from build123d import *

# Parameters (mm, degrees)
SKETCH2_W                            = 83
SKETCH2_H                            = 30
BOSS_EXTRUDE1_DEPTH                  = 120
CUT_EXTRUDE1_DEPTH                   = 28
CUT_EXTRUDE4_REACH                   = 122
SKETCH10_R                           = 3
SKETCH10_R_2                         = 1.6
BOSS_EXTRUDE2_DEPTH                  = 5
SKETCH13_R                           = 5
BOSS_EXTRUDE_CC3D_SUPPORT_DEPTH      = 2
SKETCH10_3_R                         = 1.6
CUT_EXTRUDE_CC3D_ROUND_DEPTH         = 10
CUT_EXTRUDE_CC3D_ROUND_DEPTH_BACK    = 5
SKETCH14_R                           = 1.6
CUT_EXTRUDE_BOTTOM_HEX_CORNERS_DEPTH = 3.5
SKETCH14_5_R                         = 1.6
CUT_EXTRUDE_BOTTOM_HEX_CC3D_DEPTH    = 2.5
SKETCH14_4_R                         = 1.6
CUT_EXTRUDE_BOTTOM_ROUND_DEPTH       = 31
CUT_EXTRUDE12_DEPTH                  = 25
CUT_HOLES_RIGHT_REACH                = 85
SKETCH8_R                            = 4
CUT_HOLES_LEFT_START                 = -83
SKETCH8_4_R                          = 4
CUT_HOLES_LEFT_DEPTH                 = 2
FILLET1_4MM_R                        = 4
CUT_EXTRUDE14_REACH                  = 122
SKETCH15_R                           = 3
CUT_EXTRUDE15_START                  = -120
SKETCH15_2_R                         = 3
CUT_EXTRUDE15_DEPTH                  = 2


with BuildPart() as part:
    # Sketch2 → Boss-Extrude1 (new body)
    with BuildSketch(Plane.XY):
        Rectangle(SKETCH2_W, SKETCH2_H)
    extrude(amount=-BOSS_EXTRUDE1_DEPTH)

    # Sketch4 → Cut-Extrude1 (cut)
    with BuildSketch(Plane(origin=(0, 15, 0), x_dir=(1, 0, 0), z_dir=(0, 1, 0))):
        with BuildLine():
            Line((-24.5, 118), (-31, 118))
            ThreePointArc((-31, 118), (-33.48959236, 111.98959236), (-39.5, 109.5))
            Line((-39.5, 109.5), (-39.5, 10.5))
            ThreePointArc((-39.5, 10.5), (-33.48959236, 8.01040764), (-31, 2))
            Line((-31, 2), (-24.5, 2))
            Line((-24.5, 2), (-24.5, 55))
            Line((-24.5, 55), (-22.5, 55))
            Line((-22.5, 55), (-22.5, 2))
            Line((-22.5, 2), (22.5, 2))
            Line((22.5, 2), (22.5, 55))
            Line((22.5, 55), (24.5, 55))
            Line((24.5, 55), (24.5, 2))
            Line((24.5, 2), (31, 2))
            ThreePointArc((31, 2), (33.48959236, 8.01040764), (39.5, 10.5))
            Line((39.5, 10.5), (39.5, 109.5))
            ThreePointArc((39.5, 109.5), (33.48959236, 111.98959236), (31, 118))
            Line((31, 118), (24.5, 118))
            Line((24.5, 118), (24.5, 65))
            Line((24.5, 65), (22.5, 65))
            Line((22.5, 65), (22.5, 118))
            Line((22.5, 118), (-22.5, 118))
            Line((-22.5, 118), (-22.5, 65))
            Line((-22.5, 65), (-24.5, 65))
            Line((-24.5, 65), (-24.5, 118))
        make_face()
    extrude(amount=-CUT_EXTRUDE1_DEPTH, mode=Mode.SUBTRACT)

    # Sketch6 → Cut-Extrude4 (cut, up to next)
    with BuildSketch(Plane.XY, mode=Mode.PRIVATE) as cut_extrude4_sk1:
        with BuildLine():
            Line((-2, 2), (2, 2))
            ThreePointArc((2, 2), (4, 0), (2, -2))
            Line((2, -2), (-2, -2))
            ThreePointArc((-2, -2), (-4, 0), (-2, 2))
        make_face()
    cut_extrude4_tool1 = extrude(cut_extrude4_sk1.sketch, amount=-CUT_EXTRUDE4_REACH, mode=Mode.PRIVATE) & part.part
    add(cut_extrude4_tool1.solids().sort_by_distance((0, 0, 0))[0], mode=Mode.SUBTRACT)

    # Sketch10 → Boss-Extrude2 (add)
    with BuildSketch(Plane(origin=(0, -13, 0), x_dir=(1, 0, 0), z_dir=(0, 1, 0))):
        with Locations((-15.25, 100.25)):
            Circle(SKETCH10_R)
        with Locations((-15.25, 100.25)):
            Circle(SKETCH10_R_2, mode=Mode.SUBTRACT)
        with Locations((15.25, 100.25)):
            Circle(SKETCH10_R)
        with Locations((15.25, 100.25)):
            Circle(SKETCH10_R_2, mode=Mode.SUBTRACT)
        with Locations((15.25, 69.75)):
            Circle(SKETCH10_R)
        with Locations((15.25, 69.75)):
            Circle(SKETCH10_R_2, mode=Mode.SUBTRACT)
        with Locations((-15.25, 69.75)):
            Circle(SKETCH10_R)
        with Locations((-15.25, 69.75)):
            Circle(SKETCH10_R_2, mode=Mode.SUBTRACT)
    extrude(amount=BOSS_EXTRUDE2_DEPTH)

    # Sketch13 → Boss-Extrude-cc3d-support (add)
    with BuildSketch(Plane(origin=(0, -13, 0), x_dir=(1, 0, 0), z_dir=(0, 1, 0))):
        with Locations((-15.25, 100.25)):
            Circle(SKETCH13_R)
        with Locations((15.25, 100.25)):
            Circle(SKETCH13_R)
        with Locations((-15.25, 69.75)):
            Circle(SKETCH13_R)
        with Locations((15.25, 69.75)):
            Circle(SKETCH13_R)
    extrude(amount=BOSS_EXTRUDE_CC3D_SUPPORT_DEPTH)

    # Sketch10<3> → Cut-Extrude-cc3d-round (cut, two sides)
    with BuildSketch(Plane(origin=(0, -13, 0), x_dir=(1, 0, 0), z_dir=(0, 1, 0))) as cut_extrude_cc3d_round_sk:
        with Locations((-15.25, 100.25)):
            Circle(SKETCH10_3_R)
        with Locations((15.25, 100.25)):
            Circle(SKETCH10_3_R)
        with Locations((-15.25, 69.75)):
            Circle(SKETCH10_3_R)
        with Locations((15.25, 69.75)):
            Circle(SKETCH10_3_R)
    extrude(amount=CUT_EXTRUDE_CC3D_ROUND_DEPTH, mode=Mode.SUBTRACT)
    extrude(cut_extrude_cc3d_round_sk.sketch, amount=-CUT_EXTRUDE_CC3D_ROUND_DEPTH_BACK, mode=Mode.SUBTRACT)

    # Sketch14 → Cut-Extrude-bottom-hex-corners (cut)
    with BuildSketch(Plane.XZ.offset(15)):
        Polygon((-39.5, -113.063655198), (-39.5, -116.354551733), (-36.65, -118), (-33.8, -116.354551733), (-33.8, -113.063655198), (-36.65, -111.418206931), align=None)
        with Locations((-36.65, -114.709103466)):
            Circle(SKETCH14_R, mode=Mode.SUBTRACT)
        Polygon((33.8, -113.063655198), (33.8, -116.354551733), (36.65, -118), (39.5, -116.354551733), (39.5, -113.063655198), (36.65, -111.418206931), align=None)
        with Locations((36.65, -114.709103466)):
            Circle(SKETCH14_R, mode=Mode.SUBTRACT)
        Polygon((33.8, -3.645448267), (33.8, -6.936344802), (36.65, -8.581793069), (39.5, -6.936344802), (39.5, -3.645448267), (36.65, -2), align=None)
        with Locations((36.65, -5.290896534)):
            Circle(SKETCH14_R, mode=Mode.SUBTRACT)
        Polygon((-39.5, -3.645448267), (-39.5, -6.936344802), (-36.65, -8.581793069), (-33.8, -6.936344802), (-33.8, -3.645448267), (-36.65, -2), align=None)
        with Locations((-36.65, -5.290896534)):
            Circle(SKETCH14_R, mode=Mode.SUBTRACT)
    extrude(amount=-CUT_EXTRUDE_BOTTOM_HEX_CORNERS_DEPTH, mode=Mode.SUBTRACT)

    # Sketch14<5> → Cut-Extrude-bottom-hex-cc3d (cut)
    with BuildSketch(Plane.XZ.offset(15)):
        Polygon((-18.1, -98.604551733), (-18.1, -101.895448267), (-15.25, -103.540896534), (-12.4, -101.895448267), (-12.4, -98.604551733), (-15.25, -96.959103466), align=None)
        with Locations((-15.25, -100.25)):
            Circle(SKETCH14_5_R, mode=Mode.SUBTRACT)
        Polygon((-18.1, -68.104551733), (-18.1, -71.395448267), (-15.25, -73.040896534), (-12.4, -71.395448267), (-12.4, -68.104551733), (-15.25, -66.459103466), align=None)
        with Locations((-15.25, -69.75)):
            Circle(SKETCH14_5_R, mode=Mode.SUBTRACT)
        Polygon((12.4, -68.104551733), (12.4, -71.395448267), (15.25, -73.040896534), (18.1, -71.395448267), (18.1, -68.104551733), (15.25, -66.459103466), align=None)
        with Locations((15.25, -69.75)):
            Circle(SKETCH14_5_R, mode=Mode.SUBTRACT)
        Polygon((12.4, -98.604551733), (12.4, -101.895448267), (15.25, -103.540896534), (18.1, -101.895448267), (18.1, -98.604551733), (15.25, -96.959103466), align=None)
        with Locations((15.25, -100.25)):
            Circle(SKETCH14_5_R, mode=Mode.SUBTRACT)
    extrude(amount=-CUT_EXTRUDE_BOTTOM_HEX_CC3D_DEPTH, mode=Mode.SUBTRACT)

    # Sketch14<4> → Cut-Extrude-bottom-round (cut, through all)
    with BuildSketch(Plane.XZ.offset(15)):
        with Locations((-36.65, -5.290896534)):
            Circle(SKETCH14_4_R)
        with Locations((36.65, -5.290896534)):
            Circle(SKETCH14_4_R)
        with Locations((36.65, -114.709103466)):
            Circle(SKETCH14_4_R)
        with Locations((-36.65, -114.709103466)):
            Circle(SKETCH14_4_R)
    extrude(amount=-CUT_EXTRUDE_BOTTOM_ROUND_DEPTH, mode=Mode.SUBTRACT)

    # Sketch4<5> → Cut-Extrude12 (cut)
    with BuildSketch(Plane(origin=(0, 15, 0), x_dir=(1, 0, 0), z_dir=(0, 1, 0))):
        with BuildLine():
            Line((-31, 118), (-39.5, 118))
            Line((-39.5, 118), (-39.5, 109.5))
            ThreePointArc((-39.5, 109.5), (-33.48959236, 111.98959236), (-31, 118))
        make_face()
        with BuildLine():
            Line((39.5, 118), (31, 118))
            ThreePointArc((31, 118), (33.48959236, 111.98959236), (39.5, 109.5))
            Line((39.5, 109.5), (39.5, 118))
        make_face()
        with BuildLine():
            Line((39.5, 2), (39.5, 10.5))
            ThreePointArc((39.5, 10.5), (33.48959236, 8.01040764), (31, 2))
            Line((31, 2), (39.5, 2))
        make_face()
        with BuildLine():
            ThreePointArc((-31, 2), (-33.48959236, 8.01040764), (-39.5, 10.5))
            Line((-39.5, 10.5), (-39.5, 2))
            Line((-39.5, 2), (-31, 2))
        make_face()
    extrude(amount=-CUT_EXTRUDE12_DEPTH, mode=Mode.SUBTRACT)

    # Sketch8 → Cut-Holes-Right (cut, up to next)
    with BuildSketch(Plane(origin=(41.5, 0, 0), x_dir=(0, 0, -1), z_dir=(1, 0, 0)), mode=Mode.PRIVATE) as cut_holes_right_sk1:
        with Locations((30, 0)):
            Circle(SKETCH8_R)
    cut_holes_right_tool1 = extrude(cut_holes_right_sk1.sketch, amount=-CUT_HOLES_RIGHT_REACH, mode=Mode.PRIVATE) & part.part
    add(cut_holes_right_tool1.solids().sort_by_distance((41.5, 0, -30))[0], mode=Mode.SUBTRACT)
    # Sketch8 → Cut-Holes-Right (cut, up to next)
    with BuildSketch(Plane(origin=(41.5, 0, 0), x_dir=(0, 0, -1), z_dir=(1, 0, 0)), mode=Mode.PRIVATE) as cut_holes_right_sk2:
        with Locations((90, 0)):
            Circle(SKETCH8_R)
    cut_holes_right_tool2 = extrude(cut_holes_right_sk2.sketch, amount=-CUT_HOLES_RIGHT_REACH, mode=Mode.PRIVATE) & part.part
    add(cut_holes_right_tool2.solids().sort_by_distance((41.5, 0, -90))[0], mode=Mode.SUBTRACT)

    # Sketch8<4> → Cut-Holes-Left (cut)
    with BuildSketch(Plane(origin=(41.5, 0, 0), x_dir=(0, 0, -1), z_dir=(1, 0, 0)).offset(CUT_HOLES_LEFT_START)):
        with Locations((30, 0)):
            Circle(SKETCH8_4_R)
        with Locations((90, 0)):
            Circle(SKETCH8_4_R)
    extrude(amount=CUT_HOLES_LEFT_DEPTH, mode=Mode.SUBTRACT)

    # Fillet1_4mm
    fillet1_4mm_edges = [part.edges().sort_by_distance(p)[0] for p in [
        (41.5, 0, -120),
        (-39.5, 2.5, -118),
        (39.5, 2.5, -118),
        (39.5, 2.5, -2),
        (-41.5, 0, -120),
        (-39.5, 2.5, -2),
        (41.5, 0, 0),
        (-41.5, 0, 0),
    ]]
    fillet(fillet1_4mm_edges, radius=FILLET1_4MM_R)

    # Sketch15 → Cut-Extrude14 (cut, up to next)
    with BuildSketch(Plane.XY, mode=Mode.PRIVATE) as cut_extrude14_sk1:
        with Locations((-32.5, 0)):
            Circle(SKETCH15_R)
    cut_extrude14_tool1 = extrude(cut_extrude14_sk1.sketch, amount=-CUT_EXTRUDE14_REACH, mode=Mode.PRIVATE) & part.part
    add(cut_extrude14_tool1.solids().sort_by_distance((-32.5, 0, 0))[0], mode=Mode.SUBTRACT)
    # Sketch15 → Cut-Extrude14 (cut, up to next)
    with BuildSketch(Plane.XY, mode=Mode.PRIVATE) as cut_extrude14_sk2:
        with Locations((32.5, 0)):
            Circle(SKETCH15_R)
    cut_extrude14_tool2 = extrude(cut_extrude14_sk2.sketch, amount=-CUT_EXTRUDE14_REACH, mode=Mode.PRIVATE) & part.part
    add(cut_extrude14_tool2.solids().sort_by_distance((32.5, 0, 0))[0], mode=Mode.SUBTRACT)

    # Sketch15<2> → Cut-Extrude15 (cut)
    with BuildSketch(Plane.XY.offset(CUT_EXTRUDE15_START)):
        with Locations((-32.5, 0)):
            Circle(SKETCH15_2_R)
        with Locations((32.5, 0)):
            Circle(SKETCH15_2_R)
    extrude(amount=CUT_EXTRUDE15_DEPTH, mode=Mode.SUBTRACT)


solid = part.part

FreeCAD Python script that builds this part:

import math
import FreeCAD as App
import Part
import Sketcher
from FreeCAD import Vector
Q = App.Units.Quantity


def edges_at(feature, points):
    """Names of the edges that pass closest to the given points."""
    edges = feature.Shape.Edges
    near = lambda p: min(range(len(edges)), key=lambda i: edges[i].distToShape(Part.Vertex(*p))[0])
    return sorted({f"Edge{near(p) + 1}" for p in points})

doc = App.newDocument("Part")
body = doc.addObject("PartDesign::Body", "Body")

sketch1 = body.newObject("Sketcher::SketchObject", "Sketch")
sketch1.AttachmentSupport = (doc.getObject("XY_Plane"), [""])
sketch1.MapMode = "FlatFace"
sketch1.addGeometry([
    Part.LineSegment(Vector(-42, 15, 0), Vector(-42, -15, 0)),
    Part.LineSegment(Vector(-42, -15, 0), Vector(42, -15, 0)),
    Part.LineSegment(Vector(42, -15, 0), Vector(42, 15, 0)),
    Part.LineSegment(Vector(42, 15, 0), Vector(-42, 15, 0)),
], False)
sketch1.addConstraint([
    Sketcher.Constraint("Coincident", 0, 2, 1, 1),
    Sketcher.Constraint("Coincident", 1, 2, 2, 1),
    Sketcher.Constraint("Coincident", 2, 2, 3, 1),
    Sketcher.Constraint("Coincident", 3, 2, 0, 1),
    Sketcher.Constraint("Vertical", 0),
    Sketcher.Constraint("Horizontal", 1),
    Sketcher.Constraint("Vertical", 2),
    Sketcher.Constraint("Horizontal", 3),
    Sketcher.Constraint("Symmetric", 0, 2, 2, 2, -1, 1),
    Sketcher.Constraint("DistanceX", 1, 1, 1, 2, 83.0),
    Sketcher.Constraint("DistanceY", 0, 2, 0, 1, 30.0),
])
pad1 = body.newObject("PartDesign::Pad", "Pad")
pad1.Profile = sketch1
pad1.Length = 120
pad1.Reversed = True

sketch2 = body.newObject("Sketcher::SketchObject", "Sketch001")
sketch2.AttachmentSupport = (doc.getObject("XZ_Plane"), [""])
sketch2.MapMode = "FlatFace"
sketch2.AttachmentOffset = App.Placement(Vector(0, 0, -15), App.Rotation())
sketch2.addGeometry([
    Part.LineSegment(Vector(-24.5, -118, 0), Vector(-31, -118, 0)),
    Part.ArcOfCircle(Part.Circle(Vector(-39.5, -118, 0), Vector(0, 0, 1), 8.5), math.radians(0), math.radians(90)),
    Part.LineSegment(Vector(-39.5, -109.5, 0), Vector(-39.5, -10.5, 0)),
    Part.ArcOfCircle(Part.Circle(Vector(-39.5, -2, 0), Vector(0, 0, 1), 8.5), math.radians(-90), math.radians(0)),
    Part.LineSegment(Vector(-31, -2, 0), Vector(-24.5, -2, 0)),
    Part.LineSegment(Vector(-24.5, -2, 0), Vector(-24.5, -55, 0)),
    Part.LineSegment(Vector(-24.5, -55, 0), Vector(-22.5, -55, 0)),
    Part.LineSegment(Vector(-22.5, -55, 0), Vector(-22.5, -2, 0)),
    Part.LineSegment(Vector(-22.5, -2, 0), Vector(22.5, -2, 0)),
    Part.LineSegment(Vector(22.5, -2, 0), Vector(22.5, -55, 0)),
    Part.LineSegment(Vector(22.5, -55, 0), Vector(24.5, -55, 0)),
    Part.LineSegment(Vector(24.5, -55, 0), Vector(24.5, -2, 0)),
    Part.LineSegment(Vector(24.5, -2, 0), Vector(31, -2, 0)),
    Part.ArcOfCircle(Part.Circle(Vector(39.5, -2, 0), Vector(0, 0, 1), 8.5), math.radians(180), math.radians(270)),
    Part.LineSegment(Vector(39.5, -10.5, 0), Vector(39.5, -109.5, 0)),
    Part.ArcOfCircle(Part.Circle(Vector(39.5, -118, 0), Vector(0, 0, 1), 8.5), math.radians(90), math.radians(180)),
    Part.LineSegment(Vector(31, -118, 0), Vector(24.5, -118, 0)),
    Part.LineSegment(Vector(24.5, -118, 0), Vector(24.5, -65, 0)),
    Part.LineSegment(Vector(24.5, -65, 0), Vector(22.5, -65, 0)),
    Part.LineSegment(Vector(22.5, -65, 0), Vector(22.5, -118, 0)),
    Part.LineSegment(Vector(22.5, -118, 0), Vector(-22.5, -118, 0)),
    Part.LineSegment(Vector(-22.5, -118, 0), Vector(-22.5, -65, 0)),
    Part.LineSegment(Vector(-22.5, -65, 0), Vector(-24.5, -65, 0)),
    Part.LineSegment(Vector(-24.5, -65, 0), Vector(-24.5, -118, 0)),
], False)
sketch2.addConstraint([
    Sketcher.Constraint("Coincident", 0, 2, 1, 1),
    Sketcher.Constraint("Coincident", 1, 2, 2, 1),
    Sketcher.Constraint("Coincident", 2, 2, 3, 1),
    Sketcher.Constraint("Coincident", 3, 2, 4, 1),
    Sketcher.Constraint("Coincident", 4, 2, 5, 1),
    Sketcher.Constraint("Coincident", 5, 2, 6, 1),
    Sketcher.Constraint("Coincident", 6, 2, 7, 1),
    Sketcher.Constraint("Coincident", 7, 2, 8, 1),
    Sketcher.Constraint("Coincident", 8, 2, 9, 1),
    Sketcher.Constraint("Coincident", 9, 2, 10, 1),
    Sketcher.Constraint("Coincident", 10, 2, 11, 1),
    Sketcher.Constraint("Coincident", 11, 2, 12, 1),
    Sketcher.Constraint("Coincident", 12, 2, 13, 1),
    Sketcher.Constraint("Coincident", 13, 2, 14, 1),
    Sketcher.Constraint("Coincident", 14, 2, 15, 1),
    Sketcher.Constraint("Coincident", 15, 2, 16, 1),
    Sketcher.Constraint("Coincident", 16, 2, 17, 1),
    Sketcher.Constraint("Coincident", 17, 2, 18, 1),
    Sketcher.Constraint("Coincident", 18, 2, 19, 1),
    Sketcher.Constraint("Coincident", 19, 2, 20, 1),
    Sketcher.Constraint("Coincident", 20, 2, 21, 1),
    Sketcher.Constraint("Coincident", 21, 2, 22, 1),
    Sketcher.Constraint("Coincident", 22, 2, 23, 1),
    Sketcher.Constraint("Coincident", 23, 2, 0, 1),
    Sketcher.Constraint("Horizontal", 0),
    Sketcher.Constraint("Vertical", 2),
    Sketcher.Constraint("Horizontal", 4),
    Sketcher.Constraint("Vertical", 5),
    Sketcher.Constraint("Horizontal", 6),
    Sketcher.Constraint("Vertical", 7),
    Sketcher.Constraint("Horizontal", 8),
    Sketcher.Constraint("Vertical", 9),
    Sketcher.Constraint("Horizontal", 10),
    Sketcher.Constraint("Vertical", 11),
    Sketcher.Constraint("Horizontal", 12),
    Sketcher.Constraint("Vertical", 14),
    Sketcher.Constraint("Horizontal", 16),
    Sketcher.Constraint("Vertical", 17),
    Sketcher.Constraint("Horizontal", 18),
    Sketcher.Constraint("Vertical", 19),
    Sketcher.Constraint("Horizontal", 20),
    Sketcher.Constraint("Vertical", 21),
    Sketcher.Constraint("Horizontal", 22),
    Sketcher.Constraint("Vertical", 23),
    Sketcher.Constraint("Equal", 1, 3),
    Sketcher.Constraint("Equal", 3, 13),
    Sketcher.Constraint("Equal", 13, 15),
    Sketcher.Constraint("Symmetric", 3, 3, 13, 3, -2),
    Sketcher.Constraint("Symmetric", 1, 3, 15, 3, -2),
    Sketcher.Constraint("Symmetric", 6, 2, 9, 2, -2),
    Sketcher.Constraint("Symmetric", 4, 2, 11, 2, -2),
    Sketcher.Constraint("Symmetric", 18, 2, 21, 2, -2),
    Sketcher.Constraint("Symmetric", 16, 2, 23, 2, -2),
    Sketcher.Constraint("Horizontal", 15, 3, 0, 2),
    Sketcher.Constraint("Horizontal", 13, 3, 3, 2),
    Sketcher.Constraint("Horizontal", 4, 2, 7, 2),
    Sketcher.Constraint("Horizontal", 16, 2, 19, 2),
    Sketcher.Constraint("Vertical", 1, 3, 3, 3),
    Sketcher.Constraint("Vertical", 3, 3, 1, 2),
    Sketcher.Constraint("Vertical", 15, 3, 13, 2),
    Sketcher.Constraint("Vertical", 11, 2, 16, 2),
    Sketcher.Constraint("Vertical", 9, 2, 18, 2),
    Sketcher.Constraint("Equal", 11, 17),
    Sketcher.Constraint("Radius", 1, 8.5),
    Sketcher.Constraint("DistanceX", 6, 1, 6, 2, 2.0),
    Sketcher.Constraint("DistanceX", 8, 1, 8, 2, 45.0),
    Sketcher.Constraint("DistanceY", 2, 1, 2, 2, 99.0),
    Sketcher.Constraint("DistanceY", 5, 2, 5, 1, 53.0),
    Sketcher.Constraint("DistanceX", 0, 2, 0, 1, 6.5),
    Sketcher.Constraint("DistanceY", 1, 3, -1, 1, 118.0),
])
pocket1 = body.newObject("PartDesign::Pocket", "Pocket")
pocket1.Profile = sketch2
pocket1.Length = 28
pocket1.Reversed = True

sketch3 = body.newObject("Sketcher::SketchObject", "Sketch002")
sketch3.AttachmentSupport = (doc.getObject("XY_Plane"), [""])
sketch3.MapMode = "FlatFace"
sketch3.addGeometry([
    Part.LineSegment(Vector(2, 2, 0), Vector(-2, 2, 0)),
    Part.ArcOfCircle(Part.Circle(Vector(-2, 0, 0), Vector(0, 0, 1), 2), math.radians(90), math.radians(270)),
    Part.LineSegment(Vector(-2, -2, 0), Vector(2, -2, 0)),
    Part.ArcOfCircle(Part.Circle(Vector(2, 0, 0), Vector(0, 0, 1), 2), math.radians(-90), math.radians(90)),
], False)
sketch3.addConstraint([
    Sketcher.Constraint("Tangent", 0, 2, 1, 1),
    Sketcher.Constraint("Tangent", 1, 2, 2, 1),
    Sketcher.Constraint("Tangent", 2, 2, 3, 1),
    Sketcher.Constraint("Tangent", 3, 2, 0, 1),
    Sketcher.Constraint("Horizontal", 0),
    Sketcher.Constraint("Horizontal", 2),
    Sketcher.Constraint("Symmetric", 1, 3, 3, 3, -1, 1),
    Sketcher.Constraint("Radius", 1, 2.0),
    Sketcher.Constraint("DistanceX", 0, 2, 0, 1, 4.0),
])
pocket2 = body.newObject("PartDesign::Pocket", "Pocket001")
pocket2.Profile = sketch3
pocket2.Type = "UpToFirst"

sketch4 = body.newObject("Sketcher::SketchObject", "Sketch003")
sketch4.AttachmentSupport = (doc.getObject("XZ_Plane"), [""])
sketch4.MapMode = "FlatFace"
sketch4.AttachmentOffset = App.Placement(Vector(0, 0, 13), App.Rotation())
sketch4.addGeometry([
    Part.Circle(Vector(-15.2, -100.2, 0), Vector(0, 0, 1), 3),
    Part.Circle(Vector(-15.2, -100.2, 0), Vector(0, 0, 1), 1.6),
    Part.Circle(Vector(15.2, -100.2, 0), Vector(0, 0, 1), 3),
    Part.Circle(Vector(15.2, -100.2, 0), Vector(0, 0, 1), 1.6),
    Part.Circle(Vector(15.2, -69.8, 0), Vector(0, 0, 1), 3),
    Part.Circle(Vector(15.2, -69.8, 0), Vector(0, 0, 1), 1.6),
    Part.Circle(Vector(-15.2, -69.8, 0), Vector(0, 0, 1), 3),
    Part.Circle(Vector(-15.2, -69.8, 0), Vector(0, 0, 1), 1.6),
], False)
sketch4.addConstraint([
    Sketcher.Constraint("Coincident", 1, 3, 0, 3),
    Sketcher.Constraint("Coincident", 3, 3, 2, 3),
    Sketcher.Constraint("Coincident", 5, 3, 4, 3),
    Sketcher.Constraint("Coincident", 7, 3, 6, 3),
    Sketcher.Constraint("Equal", 0, 2),
    Sketcher.Constraint("Equal", 1, 3),
    Sketcher.Constraint("Equal", 2, 4),
    Sketcher.Constraint("Equal", 3, 5),
    Sketcher.Constraint("Equal", 4, 6),
    Sketcher.Constraint("Equal", 5, 7),
    Sketcher.Constraint("Symmetric", 0, 3, 2, 3, -2),
    Sketcher.Constraint("Symmetric", 4, 3, 6, 3, -2),
    Sketcher.Constraint("Vertical", 3, 3, 4, 3),
    Sketcher.Constraint("Diameter", 0, 6.0),
    Sketcher.Constraint("Diameter", 1, 3.2),
    Sketcher.Constraint("DistanceX", 0, 3, 2, 3, 30.5),
    Sketcher.Constraint("DistanceY", 2, 3, 4, 3, 30.5),
    Sketcher.Constraint("DistanceY", 0, 3, -1, 1, 100.25),
])
pad2 = body.newObject("PartDesign::Pad", "Pad001")
pad2.Profile = sketch4
pad2.Length = 5
pad2.Reversed = True

sketch5 = body.newObject("Sketcher::SketchObject", "Sketch004")
sketch5.AttachmentSupport = (doc.getObject("XZ_Plane"), [""])
sketch5.MapMode = "FlatFace"
sketch5.AttachmentOffset = App.Placement(Vector(0, 0, 13), App.Rotation())
sketch5.addGeometry([
    Part.Circle(Vector(-15, -100, 0), Vector(0, 0, 1), 5),
    Part.Circle(Vector(15, -100, 0), Vector(0, 0, 1), 5),
    Part.Circle(Vector(-15, -70, 0), Vector(0, 0, 1), 5),
    Part.Circle(Vector(15, -70, 0), Vector(0, 0, 1), 5),
], False)
sketch5.addConstraint([
    Sketcher.Constraint("Equal", 0, 1),
    Sketcher.Constraint("Equal", 1, 2),
    Sketcher.Constraint("Equal", 2, 3),
    Sketcher.Constraint("Symmetric", 0, 3, 1, 3, -2),
    Sketcher.Constraint("Symmetric", 2, 3, 3, 3, -2),
    Sketcher.Constraint("Vertical", 0, 3, 2, 3),
    Sketcher.Constraint("Diameter", 0, 10.0),
    Sketcher.Constraint("DistanceX", 0, 3, 1, 3, 30.5),
    Sketcher.Constraint("DistanceY", 0, 3, 2, 3, 30.5),
    Sketcher.Constraint("DistanceY", 0, 3, -1, 1, 100.25),
])
pad3 = body.newObject("PartDesign::Pad", "Pad002")
pad3.Profile = sketch5
pad3.Length = 2
pad3.Reversed = True

sketch6 = body.newObject("Sketcher::SketchObject", "Sketch005")
sketch6.AttachmentSupport = (doc.getObject("XZ_Plane"), [""])
sketch6.MapMode = "FlatFace"
sketch6.AttachmentOffset = App.Placement(Vector(0, 0, 13), App.Rotation())
sketch6.addGeometry([
    Part.Circle(Vector(-15.2, -100.2, 0), Vector(0, 0, 1), 1.6),
    Part.Circle(Vector(15.2, -100.2, 0), Vector(0, 0, 1), 1.6),
    Part.Circle(Vector(-15.2, -69.8, 0), Vector(0, 0, 1), 1.6),
    Part.Circle(Vector(15.2, -69.8, 0), Vector(0, 0, 1), 1.6),
], False)
sketch6.addConstraint([
    Sketcher.Constraint("Equal", 0, 1),
    Sketcher.Constraint("Equal", 1, 2),
    Sketcher.Constraint("Equal", 2, 3),
    Sketcher.Constraint("Symmetric", 0, 3, 1, 3, -2),
    Sketcher.Constraint("Symmetric", 2, 3, 3, 3, -2),
    Sketcher.Constraint("Vertical", 0, 3, 2, 3),
    Sketcher.Constraint("Diameter", 0, 3.2),
    Sketcher.Constraint("DistanceX", 0, 3, 1, 3, 30.5),
    Sketcher.Constraint("DistanceY", 0, 3, 2, 3, 30.5),
    Sketcher.Constraint("DistanceY", 0, 3, -1, 1, 100.25),
])
pocket3 = body.newObject("PartDesign::Pocket", "Pocket002")
pocket3.Profile = sketch6
pocket3.Type = "ThroughAll"
pocket3.Midplane = True

sketch7 = body.newObject("Sketcher::SketchObject", "Sketch006")
sketch7.AttachmentSupport = (doc.getObject("XZ_Plane"), [""])
sketch7.MapMode = "FlatFace"
sketch7.AttachmentOffset = App.Placement(Vector(0, 0, 15), App.Rotation())
sketch7.addGeometry([
    Part.LineSegment(Vector(-39.5, -113.1, 0), Vector(-39.5, -116.4, 0)),
    Part.LineSegment(Vector(-39.5, -116.4, 0), Vector(-36.6, -118, 0)),
    Part.LineSegment(Vector(-36.6, -118, 0), Vector(-33.8, -116.4, 0)),
    Part.LineSegment(Vector(-33.8, -116.4, 0), Vector(-33.8, -113.1, 0)),
    Part.LineSegment(Vector(-33.8, -113.1, 0), Vector(-36.6, -111.4, 0)),
    Part.LineSegment(Vector(-36.6, -111.4, 0), Vector(-39.5, -113.1, 0)),
    Part.Circle(Vector(-36.6, -114.7, 0), Vector(0, 0, 1), 1.6),
    Part.LineSegment(Vector(33.8, -113.1, 0), Vector(33.8, -116.4, 0)),
    Part.LineSegment(Vector(33.8, -116.4, 0), Vector(36.6, -118, 0)),
    Part.LineSegment(Vector(36.6, -118, 0), Vector(39.5, -116.4, 0)),
    Part.LineSegment(Vector(39.5, -116.4, 0), Vector(39.5, -113.1, 0)),
    Part.LineSegment(Vector(39.5, -113.1, 0), Vector(36.6, -111.4, 0)),
    Part.LineSegment(Vector(36.6, -111.4, 0), Vector(33.8, -113.1, 0)),
    Part.Circle(Vector(36.6, -114.7, 0), Vector(0, 0, 1), 1.6),
    Part.LineSegment(Vector(33.8, -3.6, 0), Vector(33.8, -6.9, 0)),
    Part.LineSegment(Vector(33.8, -6.9, 0), Vector(36.6, -8.6, 0)),
    Part.LineSegment(Vector(36.6, -8.6, 0), Vector(39.5, -6.9, 0)),
    Part.LineSegment(Vector(39.5, -6.9, 0), Vector(39.5, -3.6, 0)),
    Part.LineSegment(Vector(39.5, -3.6, 0), Vector(36.6, -2, 0)),
    Part.LineSegment(Vector(36.6, -2, 0), Vector(33.8, -3.6, 0)),
    Part.Circle(Vector(36.6, -5.3, 0), Vector(0, 0, 1), 1.6),
    Part.LineSegment(Vector(-39.5, -3.6, 0), Vector(-39.5, -6.9, 0)),
    Part.LineSegment(Vector(-39.5, -6.9, 0), Vector(-36.6, -8.6, 0)),
    Part.LineSegment(Vector(-36.6, -8.6, 0), Vector(-33.8, -6.9, 0)),
    Part.LineSegment(Vector(-33.8, -6.9, 0), Vector(-33.8, -3.6, 0)),
    Part.LineSegment(Vector(-33.8, -3.6, 0), Vector(-36.6, -2, 0)),
    Part.LineSegment(Vector(-36.6, -2, 0), Vector(-39.5, -3.6, 0)),
    Part.Circle(Vector(-36.6, -5.3, 0), Vector(0, 0, 1), 1.6),
], False)
sketch7.addConstraint([
    Sketcher.Constraint("Coincident", 0, 2, 1, 1),
    Sketcher.Constraint("Coincident", 1, 2, 2, 1),
    Sketcher.Constraint("Coincident", 2, 2, 3, 1),
    Sketcher.Constraint("Coincident", 3, 2, 4, 1),
    Sketcher.Constraint("Coincident", 4, 2, 5, 1),
    Sketcher.Constraint("Coincident", 5, 2, 0, 1),
    Sketcher.Constraint("Coincident", 7, 2, 8, 1),
    Sketcher.Constraint("Coincident", 8, 2, 9, 1),
    Sketcher.Constraint("Coincident", 9, 2, 10, 1),
    Sketcher.Constraint("Coincident", 10, 2, 11, 1),
    Sketcher.Constraint("Coincident", 11, 2, 12, 1),
    Sketcher.Constraint("Coincident", 12, 2, 7, 1),
    Sketcher.Constraint("Coincident", 14, 2, 15, 1),
    Sketcher.Constraint("Coincident", 15, 2, 16, 1),
    Sketcher.Constraint("Coincident", 16, 2, 17, 1),
    Sketcher.Constraint("Coincident", 17, 2, 18, 1),
    Sketcher.Constraint("Coincident", 18, 2, 19, 1),
    Sketcher.Constraint("Coincident", 19, 2, 14, 1),
    Sketcher.Constraint("Coincident", 21, 2, 22, 1),
    Sketcher.Constraint("Coincident", 22, 2, 23, 1),
    Sketcher.Constraint("Coincident", 23, 2, 24, 1),
    Sketcher.Constraint("Coincident", 24, 2, 25, 1),
    Sketcher.Constraint("Coincident", 25, 2, 26, 1),
    Sketcher.Constraint("Coincident", 26, 2, 21, 1),
    Sketcher.Constraint("Vertical", 0),
    Sketcher.Constraint("Vertical", 3),
    Sketcher.Constraint("Vertical", 7),
    Sketcher.Constraint("Vertical", 10),
    Sketcher.Constraint("Vertical", 14),
    Sketcher.Constraint("Vertical", 17),
    Sketcher.Constraint("Vertical", 21),
    Sketcher.Constraint("Vertical", 24),
    Sketcher.Constraint("Equal", 6, 13),
    Sketcher.Constraint("Equal", 13, 20),
    Sketcher.Constraint("Equal", 20, 27),
    Sketcher.Constraint("Symmetric", 6, 3, 13, 3, -2),
    Sketcher.Constraint("Symmetric", 20, 3, 27, 3, -2),
    Sketcher.Constraint("Symmetric", 2, 2, 7, 2, -2),
    Sketcher.Constraint("Symmetric", 1, 2, 8, 2, -2),
    Sketcher.Constraint("Symmetric", 0, 2, 9, 2, -2),
    Sketcher.Constraint("Symmetric", 4, 2, 11, 2, -2),
    Sketcher.Constraint("Symmetric", 16, 2, 21, 2, -2),
    Sketcher.Constraint("Symmetric", 15, 2, 22, 2, -2),
    Sketcher.Constraint("Symmetric", 14, 2, 23, 2, -2),
    Sketcher.Constraint("Symmetric", 18, 2, 25, 2, -2),
    Sketcher.Constraint("Parallel", 1, 4),
    Sketcher.Constraint("Parallel", 2, 5),
    Sketcher.Constraint("Parallel", 4, 8),
    Sketcher.Constraint("Parallel", 8, 11),
    Sketcher.Constraint("Parallel", 9, 12),
    Sketcher.Constraint("Parallel", 11, 15),
    Sketcher.Constraint("Parallel", 12, 16),
    Sketcher.Constraint("Parallel", 15, 18),
    Sketcher.Constraint("Parallel", 16, 19),
    Sketcher.Constraint("Parallel", 22, 25),
    Sketcher.Constraint("Parallel", 23, 26),
    Sketcher.Constraint("Horizontal", 0, 2, 2, 2),
    Sketcher.Constraint("Horizontal", 3, 2, 5, 2),
    Sketcher.Constraint("Horizontal", 14, 2, 16, 2),
    Sketcher.Constraint("Horizontal", 17, 2, 19, 2),
    Sketcher.Constraint("Vertical", 13, 3, 20, 3),
    Sketcher.Constraint("Vertical", 27, 3, 1, 2),
    Sketcher.Constraint("Vertical", 12, 2, 14, 2),
    Sketcher.Constraint("Vertical", 11, 2, 15, 2),
    Sketcher.Constraint("Equal", 10, 14),
    Sketcher.Constraint("Diameter", 6, 3.2),
    Sketcher.Constraint("Angle", 1, Q("-30 deg")),
    Sketcher.Constraint("DistanceY", 1, 2, -1, 1, 118.0),
    Sketcher.Constraint("DistanceY", 18, 2, -1, 1, 2.0),
    Sketcher.Constraint("DistanceX", 0, 2, -1, 1, 39.5),
    Sketcher.Constraint("DistanceX", 2, 2, -1, 1, 33.8),
    Sketcher.Constraint("DistanceY", 0, 2, 0, 1, 3.290897),
    Sketcher.Constraint("DistanceY", 0, 2, 6, 3, 1.645448),
    Sketcher.Constraint("DistanceY", 14, 2, 20, 3, 1.645448),
])
pocket4 = body.newObject("PartDesign::Pocket", "Pocket003")
pocket4.Profile = sketch7
pocket4.Length = 3.5

sketch8 = body.newObject("Sketcher::SketchObject", "Sketch007")
sketch8.AttachmentSupport = (doc.getObject("XZ_Plane"), [""])
sketch8.MapMode = "FlatFace"
sketch8.AttachmentOffset = App.Placement(Vector(0, 0, 15), App.Rotation())
sketch8.addGeometry([
    Part.LineSegment(Vector(-18.1, -98.6, 0), Vector(-18.1, -101.9, 0)),
    Part.LineSegment(Vector(-18.1, -101.9, 0), Vector(-15.2, -103.5, 0)),
    Part.LineSegment(Vector(-15.2, -103.5, 0), Vector(-12.4, -101.9, 0)),
    Part.LineSegment(Vector(-12.4, -101.9, 0), Vector(-12.4, -98.6, 0)),
    Part.LineSegment(Vector(-12.4, -98.6, 0), Vector(-15.2, -97, 0)),
    Part.LineSegment(Vector(-15.2, -97, 0), Vector(-18.1, -98.6, 0)),
    Part.Circle(Vector(-15.2, -100.2, 0), Vector(0, 0, 1), 1.6),
    Part.LineSegment(Vector(-18.1, -68.1, 0), Vector(-18.1, -71.4, 0)),
    Part.LineSegment(Vector(-18.1, -71.4, 0), Vector(-15.2, -73, 0)),
    Part.LineSegment(Vector(-15.2, -73, 0), Vector(-12.4, -71.4, 0)),
    Part.LineSegment(Vector(-12.4, -71.4, 0), Vector(-12.4, -68.1, 0)),
    Part.LineSegment(Vector(-12.4, -68.1, 0), Vector(-15.2, -66.5, 0)),
    Part.LineSegment(Vector(-15.2, -66.5, 0), Vector(-18.1, -68.1, 0)),
    Part.Circle(Vector(-15.2, -69.8, 0), Vector(0, 0, 1), 1.6),
    Part.LineSegment(Vector(12.4, -68.1, 0), Vector(12.4, -71.4, 0)),
    Part.LineSegment(Vector(12.4, -71.4, 0), Vector(15.2, -73, 0)),
    Part.LineSegment(Vector(15.2, -73, 0), Vector(18.1, -71.4, 0)),
    Part.LineSegment(Vector(18.1, -71.4, 0), Vector(18.1, -68.1, 0)),
    Part.LineSegment(Vector(18.1, -68.1, 0), Vector(15.2, -66.5, 0)),
    Part.LineSegment(Vector(15.2, -66.5, 0), Vector(12.4, -68.1, 0)),
    Part.Circle(Vector(15.2, -69.8, 0), Vector(0, 0, 1), 1.6),
    Part.LineSegment(Vector(12.4, -98.6, 0), Vector(12.4, -101.9, 0)),
    Part.LineSegment(Vector(12.4, -101.9, 0), Vector(15.2, -103.5, 0)),
    Part.LineSegment(Vector(15.2, -103.5, 0), Vector(18.1, -101.9, 0)),
    Part.LineSegment(Vector(18.1, -101.9, 0), Vector(18.1, -98.6, 0)),
    Part.LineSegment(Vector(18.1, -98.6, 0), Vector(15.2, -97, 0)),
    Part.LineSegment(Vector(15.2, -97, 0), Vector(12.4, -98.6, 0)),
    Part.Circle(Vector(15.2, -100.2, 0), Vector(0, 0, 1), 1.6),
], False)
sketch8.addConstraint([
    Sketcher.Constraint("Coincident", 0, 2, 1, 1),
    Sketcher.Constraint("Coincident", 1, 2, 2, 1),
    Sketcher.Constraint("Coincident", 2, 2, 3, 1),
    Sketcher.Constraint("Coincident", 3, 2, 4, 1),
    Sketcher.Constraint("Coincident", 4, 2, 5, 1),
    Sketcher.Constraint("Coincident", 5, 2, 0, 1),
    Sketcher.Constraint("Coincident", 7, 2, 8, 1),
    Sketcher.Constraint("Coincident", 8, 2, 9, 1),
    Sketcher.Constraint("Coincident", 9, 2, 10, 1),
    Sketcher.Constraint("Coincident", 10, 2, 11, 1),
    Sketcher.Constraint("Coincident", 11, 2, 12, 1),
    Sketcher.Constraint("Coincident", 12, 2, 7, 1),
    Sketcher.Constraint("Coincident", 14, 2, 15, 1),
    Sketcher.Constraint("Coincident", 15, 2, 16, 1),
    Sketcher.Constraint("Coincident", 16, 2, 17, 1),
    Sketcher.Constraint("Coincident", 17, 2, 18, 1),
    Sketcher.Constraint("Coincident", 18, 2, 19, 1),
    Sketcher.Constraint("Coincident", 19, 2, 14, 1),
    Sketcher.Constraint("Coincident", 21, 2, 22, 1),
    Sketcher.Constraint("Coincident", 22, 2, 23, 1),
    Sketcher.Constraint("Coincident", 23, 2, 24, 1),
    Sketcher.Constraint("Coincident", 24, 2, 25, 1),
    Sketcher.Constraint("Coincident", 25, 2, 26, 1),
    Sketcher.Constraint("Coincident", 26, 2, 21, 1),
    Sketcher.Constraint("Vertical", 0),
    Sketcher.Constraint("Vertical", 3),
    Sketcher.Constraint("Vertical", 7),
    Sketcher.Constraint("Vertical", 10),
    Sketcher.Constraint("Vertical", 14),
    Sketcher.Constraint("Vertical", 17),
    Sketcher.Constraint("Vertical", 21),
    Sketcher.Constraint("Vertical", 24),
    Sketcher.Constraint("Equal", 6, 13),
    Sketcher.Constraint("Equal", 13, 20),
    Sketcher.Constraint("Equal", 20, 27),
    Sketcher.Constraint("Symmetric", 13, 3, 20, 3, -2),
    Sketcher.Constraint("Symmetric", 6, 3, 27, 3, -2),
    Sketcher.Constraint("Symmetric", 9, 2, 14, 2, -2),
    Sketcher.Constraint("Symmetric", 8, 2, 15, 2, -2),
    Sketcher.Constraint("Symmetric", 7, 2, 16, 2, -2),
    Sketcher.Constraint("Symmetric", 11, 2, 18, 2, -2),
    Sketcher.Constraint("Symmetric", 2, 2, 21, 2, -2),
    Sketcher.Constraint("Symmetric", 1, 2, 22, 2, -2),
    Sketcher.Constraint("Symmetric", 0, 2, 23, 2, -2),
    Sketcher.Constraint("Symmetric", 4, 2, 25, 2, -2),
    Sketcher.Constraint("Parallel", 1, 4),
    Sketcher.Constraint("Parallel", 2, 5),
    Sketcher.Constraint("Parallel", 4, 8),
    Sketcher.Constraint("Parallel", 5, 9),
    Sketcher.Constraint("Parallel", 8, 11),
    Sketcher.Constraint("Parallel", 9, 12),
    Sketcher.Constraint("Parallel", 11, 15),
    Sketcher.Constraint("Parallel", 15, 18),
    Sketcher.Constraint("Parallel", 16, 19),
    Sketcher.Constraint("Parallel", 22, 25),
    Sketcher.Constraint("Parallel", 23, 26),
    Sketcher.Constraint("Horizontal", 0, 2, 2, 2),
    Sketcher.Constraint("Horizontal", 3, 2, 5, 2),
    Sketcher.Constraint("Horizontal", 7, 2, 9, 2),
    Sketcher.Constraint("Horizontal", 10, 2, 12, 2),
    Sketcher.Constraint("Vertical", 6, 3, 13, 3),
    Sketcher.Constraint("Vertical", 13, 3, 1, 2),
    Sketcher.Constraint("Vertical", 5, 2, 7, 2),
    Sketcher.Constraint("Vertical", 4, 2, 8, 2),
    Sketcher.Constraint("Equal", 3, 7),
    Sketcher.Constraint("Diameter", 6, 3.2),
    Sketcher.Constraint("Angle", 1, Q("-30 deg")),
    Sketcher.Constraint("DistanceX", 0, 2, -1, 1, 18.1),
    Sketcher.Constraint("DistanceX", 2, 2, -1, 1, 12.4),
    Sketcher.Constraint("DistanceY", 6, 3, 13, 3, 30.5),
    Sketcher.Constraint("DistanceY", 6, 3, -1, 1, 100.25),
    Sketcher.Constraint("DistanceY", 0, 2, 0, 1, 3.290897),
    Sketcher.Constraint("DistanceY", 0, 2, -1, 1, 101.895448),
    Sketcher.Constraint("DistanceY", 7, 2, -1, 1, 71.395448),
])
pocket5 = body.newObject("PartDesign::Pocket", "Pocket004")
pocket5.Profile = sketch8
pocket5.Length = 2.5

sketch9 = body.newObject("Sketcher::SketchObject", "Sketch008")
sketch9.AttachmentSupport = (doc.getObject("XZ_Plane"), [""])
sketch9.MapMode = "FlatFace"
sketch9.AttachmentOffset = App.Placement(Vector(0, 0, 15), App.Rotation())
sketch9.addGeometry([
    Part.Circle(Vector(-36.6, -5.3, 0), Vector(0, 0, 1), 1.6),
    Part.Circle(Vector(36.6, -5.3, 0), Vector(0, 0, 1), 1.6),
    Part.Circle(Vector(36.6, -114.7, 0), Vector(0, 0, 1), 1.6),
    Part.Circle(Vector(-36.6, -114.7, 0), Vector(0, 0, 1), 1.6),
], False)
sketch9.addConstraint([
    Sketcher.Constraint("Equal", 0, 1),
    Sketcher.Constraint("Equal", 1, 2),
    Sketcher.Constraint("Equal", 2, 3),
    Sketcher.Constraint("Symmetric", 0, 3, 1, 3, -2),
    Sketcher.Constraint("Symmetric", 2, 3, 3, 3, -2),
    Sketcher.Constraint("Vertical", 1, 3, 2, 3),
    Sketcher.Constraint("Diameter", 0, 3.2),
    Sketcher.Constraint("DistanceX", 0, 3, 1, 3, 73.3),
    Sketcher.Constraint("DistanceY", 0, 3, -1, 1, 5.290897),
    Sketcher.Constraint("DistanceY", 2, 3, -1, 1, 114.709103),
])
pocket6 = body.newObject("PartDesign::Pocket", "Pocket005")
pocket6.Profile = sketch9
pocket6.Type = "ThroughAll"

sketch10 = body.newObject("Sketcher::SketchObject", "Sketch009")
sketch10.AttachmentSupport = (doc.getObject("XZ_Plane"), [""])
sketch10.MapMode = "FlatFace"
sketch10.AttachmentOffset = App.Placement(Vector(0, 0, -15), App.Rotation())
sketch10.addGeometry([
    Part.LineSegment(Vector(-31, -118, 0), Vector(-40, -118, 0)),
    Part.LineSegment(Vector(-40, -118, 0), Vector(-40, -110, 0)),
    Part.ArcOfCircle(Part.Circle(Vector(-40, -118, 0), Vector(0, 0, 1), 8), math.radians(0), math.radians(90)),
    Part.LineSegment(Vector(40, -118, 0), Vector(31, -118, 0)),
    Part.ArcOfCircle(Part.Circle(Vector(40, -118, 0), Vector(0, 0, 1), 8), math.radians(90), math.radians(180)),
    Part.LineSegment(Vector(40, -110, 0), Vector(40, -118, 0)),
    Part.LineSegment(Vector(40, -2, 0), Vector(40, -10, 0)),
    Part.ArcOfCircle(Part.Circle(Vector(40, -2, 0), Vector(0, 0, 1), 8), math.radians(180), math.radians(270)),
    Part.LineSegment(Vector(31, -2, 0), Vector(40, -2, 0)),
    Part.ArcOfCircle(Part.Circle(Vector(-40, -2, 0), Vector(0, 0, 1), 8), math.radians(-90), math.radians(0)),
    Part.LineSegment(Vector(-40, -10, 0), Vector(-40, -2, 0)),
    Part.LineSegment(Vector(-40, -2, 0), Vector(-31, -2, 0)),
], False)
sketch10.addConstraint([
    Sketcher.Constraint("Coincident", 0, 2, 1, 1),
    Sketcher.Constraint("Coincident", 1, 2, 2, 2),
    Sketcher.Constraint("Coincident", 2, 1, 0, 1),
    Sketcher.Constraint("Coincident", 3, 2, 4, 2),
    Sketcher.Constraint("Coincident", 4, 1, 5, 1),
    Sketcher.Constraint("Coincident", 5, 2, 3, 1),
    Sketcher.Constraint("Coincident", 6, 2, 7, 2),
    Sketcher.Constraint("Coincident", 7, 1, 8, 1),
    Sketcher.Constraint("Coincident", 8, 2, 6, 1),
    Sketcher.Constraint("Coincident", 9, 1, 10, 1),
    Sketcher.Constraint("Coincident", 10, 2, 11, 1),
    Sketcher.Constraint("Coincident", 11, 2, 9, 2),
    Sketcher.Constraint("Horizontal", 0),
    Sketcher.Constraint("Vertical", 1),
    Sketcher.Constraint("Horizontal", 3),
    Sketcher.Constraint("Vertical", 5),
    Sketcher.Constraint("Vertical", 6),
    Sketcher.Constraint("Horizontal", 8),
    Sketcher.Constraint("Vertical", 10),
    Sketcher.Constraint("Horizontal", 11),
    Sketcher.Constraint("Coincident", 0, 2, 2, 3),
    Sketcher.Constraint("Coincident", 5, 2, 4, 3),
    Sketcher.Constraint("Coincident", 8, 2, 7, 3),
    Sketcher.Constraint("Coincident", 10, 2, 9, 3),
    Sketcher.Constraint("Equal", 2, 4),
    Sketcher.Constraint("Equal", 4, 7),
    Sketcher.Constraint("Equal", 7, 9),
    Sketcher.Constraint("Symmetric", 2, 3, 4, 3, -2),
    Sketcher.Constraint("Symmetric", 7, 3, 9, 3, -2),
    Sketcher.Constraint("Vertical", 4, 3, 7, 3),
    Sketcher.Constraint("Radius", 2, 8.5),
    Sketcher.Constraint("DistanceY", 2, 3, -1, 1, 118.0),
    Sketcher.Constraint("DistanceY", 7, 3, -1, 1, 2.0),
    Sketcher.Constraint("DistanceX", 2, 1, -1, 1, 31.0),
])
pocket7 = body.newObject("PartDesign::Pocket", "Pocket006")
pocket7.Profile = sketch10
pocket7.Length = 25
pocket7.Reversed = True

sketch11 = body.newObject("Sketcher::SketchObject", "Sketch010")
sketch11.AttachmentSupport = (doc.getObject("YZ_Plane"), [""])
sketch11.MapMode = "FlatFace"
sketch11.AttachmentOffset = App.Placement(Vector(0, 0, 41.5), App.Rotation())
sketch11.addGeometry(Part.Circle(Vector(0, -30, 0), Vector(0, 0, 1), 4), False)
sketch11.addConstraint([
    Sketcher.Constraint("PointOnObject", 0, 3, -2),
    Sketcher.Constraint("Diameter", 0, 8.0),
    Sketcher.Constraint("DistanceY", 0, 3, -1, 1, 30.0),
])
pocket8 = body.newObject("PartDesign::Pocket", "Pocket007")
pocket8.Profile = sketch11
pocket8.Type = "UpToFirst"

sketch12 = body.newObject("Sketcher::SketchObject", "Sketch011")
sketch12.AttachmentSupport = (doc.getObject("YZ_Plane"), [""])
sketch12.MapMode = "FlatFace"
sketch12.AttachmentOffset = App.Placement(Vector(0, 0, 41.5), App.Rotation())
sketch12.addGeometry(Part.Circle(Vector(0, -90, 0), Vector(0, 0, 1), 4), False)
sketch12.addConstraint([
    Sketcher.Constraint("PointOnObject", 0, 3, -2),
    Sketcher.Constraint("Diameter", 0, 8.0),
    Sketcher.Constraint("DistanceY", 0, 3, -1, 1, 90.0),
])
pocket9 = body.newObject("PartDesign::Pocket", "Pocket008")
pocket9.Profile = sketch12
pocket9.Type = "UpToFirst"

sketch13 = body.newObject("Sketcher::SketchObject", "Sketch012")
sketch13.AttachmentSupport = (doc.getObject("YZ_Plane"), [""])
sketch13.MapMode = "FlatFace"
sketch13.AttachmentOffset = App.Placement(Vector(0, 0, -41.5), App.Rotation())
sketch13.addGeometry([
    Part.Circle(Vector(0, -30, 0), Vector(0, 0, 1), 4),
    Part.Circle(Vector(0, -90, 0), Vector(0, 0, 1), 4),
], False)
sketch13.addConstraint([
    Sketcher.Constraint("Equal", 0, 1),
    Sketcher.Constraint("PointOnObject", 0, 3, -2),
    Sketcher.Constraint("PointOnObject", 1, 3, -2),
    Sketcher.Constraint("Diameter", 0, 8.0),
    Sketcher.Constraint("DistanceY", 0, 3, -1, 1, 30.0),
    Sketcher.Constraint("DistanceY", 1, 3, -1, 1, 90.0),
])
pocket10 = body.newObject("PartDesign::Pocket", "Pocket009")
pocket10.Profile = sketch13
pocket10.Length = 2
pocket10.Reversed = True
doc.recompute()

fillet = body.newObject("PartDesign::Fillet", "Fillet")
fillet.Base = (pocket10, edges_at(pocket10, [
    (41.5, 0, -120),
    (-39.5, 2.5, -118),
    (39.5, 2.5, -118),
    (39.5, 2.5, -2),
    (-41.5, 0, -120),
    (-39.5, 2.5, -2),
    (41.5, 0, 0),
    (-41.5, 0, 0),
]))
fillet.Radius = 4

sketch14 = body.newObject("Sketcher::SketchObject", "Sketch013")
sketch14.AttachmentSupport = (doc.getObject("XY_Plane"), [""])
sketch14.MapMode = "FlatFace"
sketch14.addGeometry(Part.Circle(Vector(-32.5, 0, 0), Vector(0, 0, 1), 3), False)
sketch14.addConstraint([
    Sketcher.Constraint("PointOnObject", 0, 3, -1),
    Sketcher.Constraint("Diameter", 0, 6.0),
    Sketcher.Constraint("DistanceX", 0, 3, -1, 1, 32.5),
])
pocket11 = body.newObject("PartDesign::Pocket", "Pocket010")
pocket11.Profile = sketch14
pocket11.Type = "UpToFirst"

sketch15 = body.newObject("Sketcher::SketchObject", "Sketch014")
sketch15.AttachmentSupport = (doc.getObject("XY_Plane"), [""])
sketch15.MapMode = "FlatFace"
sketch15.addGeometry(Part.Circle(Vector(32.5, 0, 0), Vector(0, 0, 1), 3), False)
sketch15.addConstraint([
    Sketcher.Constraint("PointOnObject", 0, 3, -1),
    Sketcher.Constraint("Diameter", 0, 6.0),
    Sketcher.Constraint("DistanceX", -1, 1, 0, 3, 32.5),
])
pocket12 = body.newObject("PartDesign::Pocket", "Pocket011")
pocket12.Profile = sketch15
pocket12.Type = "UpToFirst"

sketch16 = body.newObject("Sketcher::SketchObject", "Sketch015")
sketch16.AttachmentSupport = (doc.getObject("XY_Plane"), [""])
sketch16.MapMode = "FlatFace"
sketch16.AttachmentOffset = App.Placement(Vector(0, 0, -120), App.Rotation())
sketch16.addGeometry([
    Part.Circle(Vector(-32.5, 0, 0), Vector(0, 0, 1), 3),
    Part.Circle(Vector(32.5, 0, 0), Vector(0, 0, 1), 3),
], False)
sketch16.addConstraint([
    Sketcher.Constraint("Equal", 0, 1),
    Sketcher.Constraint("Symmetric", 0, 3, 1, 3, -1, 1),
    Sketcher.Constraint("PointOnObject", 0, 3, -1),
    Sketcher.Constraint("Diameter", 0, 6.0),
    Sketcher.Constraint("DistanceX", 0, 3, 1, 3, 65.0),
])
pocket13 = body.newObject("PartDesign::Pocket", "Pocket012")
pocket13.Profile = sketch16
pocket13.Length = 2
pocket13.Reversed = True

doc.recompute()
